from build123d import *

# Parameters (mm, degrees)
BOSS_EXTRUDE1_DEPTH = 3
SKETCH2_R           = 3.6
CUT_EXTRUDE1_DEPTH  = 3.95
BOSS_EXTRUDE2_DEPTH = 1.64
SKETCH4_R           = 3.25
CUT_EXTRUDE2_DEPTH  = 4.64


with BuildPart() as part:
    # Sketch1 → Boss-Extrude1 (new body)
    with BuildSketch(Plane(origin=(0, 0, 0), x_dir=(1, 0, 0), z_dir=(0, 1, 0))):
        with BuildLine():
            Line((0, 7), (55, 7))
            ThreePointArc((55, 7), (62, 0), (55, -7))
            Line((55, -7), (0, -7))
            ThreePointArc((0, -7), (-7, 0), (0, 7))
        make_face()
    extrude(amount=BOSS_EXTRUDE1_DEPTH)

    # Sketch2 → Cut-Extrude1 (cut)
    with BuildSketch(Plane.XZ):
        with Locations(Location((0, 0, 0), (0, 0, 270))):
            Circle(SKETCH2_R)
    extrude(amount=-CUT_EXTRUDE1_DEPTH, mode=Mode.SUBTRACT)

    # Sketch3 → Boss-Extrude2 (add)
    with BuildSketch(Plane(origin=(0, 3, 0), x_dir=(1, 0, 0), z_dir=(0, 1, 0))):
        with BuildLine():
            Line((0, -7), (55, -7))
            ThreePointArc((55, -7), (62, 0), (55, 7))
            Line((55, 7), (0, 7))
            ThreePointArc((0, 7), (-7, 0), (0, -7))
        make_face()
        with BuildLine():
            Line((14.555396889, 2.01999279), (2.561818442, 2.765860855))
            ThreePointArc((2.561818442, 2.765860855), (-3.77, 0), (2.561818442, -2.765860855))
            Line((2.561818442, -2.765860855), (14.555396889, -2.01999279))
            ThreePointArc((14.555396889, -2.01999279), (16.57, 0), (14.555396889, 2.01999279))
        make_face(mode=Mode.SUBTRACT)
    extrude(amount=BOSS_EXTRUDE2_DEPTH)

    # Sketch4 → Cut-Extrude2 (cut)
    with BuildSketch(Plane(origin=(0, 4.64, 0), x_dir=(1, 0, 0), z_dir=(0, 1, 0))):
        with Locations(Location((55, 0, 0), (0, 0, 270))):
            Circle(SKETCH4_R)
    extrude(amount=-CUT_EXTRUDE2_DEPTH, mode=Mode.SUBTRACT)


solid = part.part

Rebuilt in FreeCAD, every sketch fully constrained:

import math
import FreeCAD as App
import Part
import Sketcher
from FreeCAD import Vector

doc = App.newDocument("Part")
body = doc.addObject("PartDesign::Body", "Body")

sketch1 = body.newObject("Sketcher::SketchObject", "Sketch")
sketch1.AttachmentSupport = (doc.getObject("XZ_Plane"), [""])
sketch1.MapMode = "FlatFace"
sketch1.addGeometry([
    Part.LineSegment(Vector(55, -7, 0), Vector(0, -7, 0)),
    Part.ArcOfCircle(Part.Circle(Vector(0, 0, 0), Vector(0, 0, 1), 7), math.radians(90), math.radians(270)),
    Part.LineSegment(Vector(0, 7, 0), Vector(55, 7, 0)),
    Part.ArcOfCircle(Part.Circle(Vector(55, 0, 0), Vector(0, 0, 1), 7), math.radians(-90), math.radians(90)),
], False)
sketch1.addConstraint([
    Sketcher.Constraint("Tangent", 0, 2, 1, 2),
    Sketcher.Constraint("Tangent", 1, 1, 2, 1),
    Sketcher.Constraint("Tangent", 2, 2, 3, 2),
    Sketcher.Constraint("Tangent", 3, 1, 0, 1),
    Sketcher.Constraint("Horizontal", 0),
    Sketcher.Constraint("Horizontal", 2),
    Sketcher.Constraint("Coincident", 1, 3, -1, 1),
    Sketcher.Constraint("Radius", 1, 7.0),
    Sketcher.Constraint("DistanceX", 0, 2, 0, 1, 55.0),
])
pad1 = body.newObject("PartDesign::Pad", "Pad")
pad1.Profile = sketch1
pad1.Length = 3
pad1.Reversed = True

sketch2 = body.newObject("Sketcher::SketchObject", "Sketch001")
sketch2.AttachmentSupport = (doc.getObject("XZ_Plane"), [""])
sketch2.MapMode = "FlatFace"
sketch2.addGeometry(Part.Circle(Vector(0, 0, 0), Vector(0, 0, 1), 3.6), False)
sketch2.addConstraint([
    Sketcher.Constraint("Coincident", 0, 3, -1, 1),
    Sketcher.Constraint("Diameter", 0, 7.2),
])
pocket1 = body.newObject("PartDesign::Pocket", "Pocket")
pocket1.Profile = sketch2
pocket1.Length = 3.95

sketch3 = body.newObject("Sketcher::SketchObject", "Sketch002")
sketch3.AttachmentSupport = (doc.getObject("XZ_Plane"), [""])
sketch3.MapMode = "FlatFace"
sketch3.AttachmentOffset = App.Placement(Vector(0, 0, -3), App.Rotation())
sketch3.addGeometry([
    Part.LineSegment(Vector(0, 7, 0), Vector(55, 7, 0)),
    Part.ArcOfCircle(Part.Circle(Vector(55, 0, 0), Vector(0, 0, 1), 7), math.radians(-90), math.radians(90)),
    Part.LineSegment(Vector(55, -7, 0), Vector(0, -7, 0)),
    Part.ArcOfCircle(Part.Circle(Vector(0, 0, 0), Vector(0, 0, 1), 7), math.radians(90), math.radians(270)),
    Part.LineSegment(Vector(2.6, -2.8, 0), Vector(14.6, -2, 0)),
    Part.ArcOfCircle(Part.Circle(Vector(14.6, 0, 0), Vector(0, 0, 1), 2), math.radians(-90), math.radians(90)),
    Part.LineSegment(Vector(14.6, 2, 0), Vector(2.6, 2.8, 0)),
    Part.ArcOfCircle(Part.Circle(Vector(0, 0, 0), Vector(0, 0, 1), 3.8), math.radians(47), math.radians(313)),
], False)
sketch3.addConstraint([
    Sketcher.Constraint("Tangent", 0, 2, 1, 2),
    Sketcher.Constraint("Tangent", 1, 1, 2, 1),
    Sketcher.Constraint("Tangent", 2, 2, 3, 2),
    Sketcher.Constraint("Tangent", 3, 1, 0, 1),
    Sketcher.Constraint("Coincident", 4, 2, 5, 1),
    Sketcher.Constraint("Coincident", 5, 2, 6, 1),
    Sketcher.Constraint("Coincident", 6, 2, 7, 1),
    Sketcher.Constraint("Coincident", 7, 2, 4, 1),
    Sketcher.Constraint("Horizontal", 0),
    Sketcher.Constraint("Horizontal", 2),
    Sketcher.Constraint("Coincident", 3, 3, -1, 1),
    Sketcher.Constraint("Coincident", 7, 3, -1, 1),
    Sketcher.Constraint("Symmetric", 4, 2, 5, 2, -1),
    Sketcher.Constraint("Vertical", 6, 2, 7, 2),
    Sketcher.Constraint("Radius", 1, 7.0),
    Sketcher.Constraint("DistanceX", 0, 1, 0, 2, 55.0),
    Sketcher.Constraint("Radius", 5, 2.02),
    Sketcher.Constraint("Radius", 7, 3.77),
    Sketcher.Constraint("DistanceX", -1, 1, 5, 3, 14.55),
    Sketcher.Constraint("Distance", 4, 12.016748),
    Sketcher.Constraint("DistanceX", -1, 1, 6, 2, 2.561818),
])
pad2 = body.newObject("PartDesign::Pad", "Pad001")
pad2.Profile = sketch3
pad2.Length = 1.64
pad2.Reversed = True

sketch4 = body.newObject("Sketcher::SketchObject", "Sketch003")
sketch4.AttachmentSupport = (doc.getObject("XZ_Plane"), [""])
sketch4.MapMode = "FlatFace"
sketch4.AttachmentOffset = App.Placement(Vector(0, 0, -4.64), App.Rotation())
sketch4.addGeometry(Part.Circle(Vector(55, 0, 0), Vector(0, 0, 1), 3.2), False)
sketch4.addConstraint([
    Sketcher.Constraint("PointOnObject", 0, 3, -1),
    Sketcher.Constraint("Diameter", 0, 6.5),
    Sketcher.Constraint("DistanceX", -1, 1, 0, 3, 55.0),
])
pocket2 = body.newObject("PartDesign::Pocket", "Pocket001")
pocket2.Profile = sketch4
pocket2.Length = 4.64
pocket2.Reversed = True

doc.recompute()
